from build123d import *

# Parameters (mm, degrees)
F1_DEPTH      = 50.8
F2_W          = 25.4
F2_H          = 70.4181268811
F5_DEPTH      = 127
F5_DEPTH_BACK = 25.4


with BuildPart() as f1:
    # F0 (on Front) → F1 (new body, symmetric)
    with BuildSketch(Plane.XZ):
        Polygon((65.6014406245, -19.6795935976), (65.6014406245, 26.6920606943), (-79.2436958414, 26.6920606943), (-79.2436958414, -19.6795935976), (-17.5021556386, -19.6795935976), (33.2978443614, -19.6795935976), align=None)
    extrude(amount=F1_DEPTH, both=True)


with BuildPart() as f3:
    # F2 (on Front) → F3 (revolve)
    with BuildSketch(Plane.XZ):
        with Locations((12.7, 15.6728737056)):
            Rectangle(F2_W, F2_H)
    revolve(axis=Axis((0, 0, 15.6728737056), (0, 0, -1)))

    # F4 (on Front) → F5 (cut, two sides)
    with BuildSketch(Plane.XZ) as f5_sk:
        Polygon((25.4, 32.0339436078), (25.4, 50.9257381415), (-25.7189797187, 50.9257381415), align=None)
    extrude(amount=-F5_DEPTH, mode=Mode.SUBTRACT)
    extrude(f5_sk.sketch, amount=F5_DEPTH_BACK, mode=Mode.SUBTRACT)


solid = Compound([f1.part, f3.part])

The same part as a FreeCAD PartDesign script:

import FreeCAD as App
import Part
import Sketcher
from FreeCAD import Vector
Q = App.Units.Quantity

doc = App.newDocument("Part")
body = doc.addObject("PartDesign::Body", "Body")

# Sketch on XZ plane
sketch1 = body.newObject("Sketcher::SketchObject", "Sketch")
sketch1.AttachmentSupport = (doc.getObject("XZ_Plane"), [""])
sketch1.MapMode = "FlatFace"
sketch1.addGeometry([
    Part.LineSegment(Vector(65.601441, -19.679594, 0), Vector(65.601441, 26.692061, 0)),
    Part.LineSegment(Vector(65.601441, 26.692061, 0), Vector(-79.243696, 26.692061, 0)),
    Part.LineSegment(Vector(-79.243696, 26.692061, 0), Vector(-79.243696, -19.679594, 0)),
    Part.LineSegment(Vector(-79.243696, -19.679594, 0), Vector(65.601441, -19.679594, 0)),
], False)
sketch1.addConstraint([
    Sketcher.Constraint("Coincident", 0, 2, 1, 1),
    Sketcher.Constraint("Coincident", 1, 2, 2, 1),
    Sketcher.Constraint("Coincident", 2, 2, 3, 1),
    Sketcher.Constraint("Coincident", 3, 2, 0, 1),
    Sketcher.Constraint("Vertical", 0),
    Sketcher.Constraint("Horizontal", 1),
    Sketcher.Constraint("Vertical", 2),
    Sketcher.Constraint("Horizontal", 3),
    Sketcher.Constraint("DistanceX", 1, 2, 1, 1, 144.845136),
    Sketcher.Constraint("DistanceY", 0, 1, 0, 2, 46.371654),
    Sketcher.Constraint("DistanceX", -1, 1, 0, 2, 65.601441),
    Sketcher.Constraint("DistanceY", -1, 1, 0, 2, 26.692061),
])
pad1 = body.newObject("PartDesign::Pad", "Pad")
pad1.Profile = sketch1
pad1.Length = Q("4 in")
pad1.Midplane = True
body2 = doc.addObject("PartDesign::Body", "Body001")

# Sketch on XZ plane
sketch2 = body2.newObject("Sketcher::SketchObject", "Sketch001")
sketch2.AttachmentSupport = (doc.getObject("XZ_Plane001"), [""])
sketch2.MapMode = "FlatFace"
sketch2.addGeometry([
    Part.LineSegment(Vector(0, 50.881937, 0), Vector(0, -19.53619, 0)),
    Part.LineSegment(Vector(0, -19.53619, 0), Vector(25.4, -19.53619, 0)),
    Part.LineSegment(Vector(25.4, -19.53619, 0), Vector(25.4, 50.881937, 0)),
    Part.LineSegment(Vector(25.4, 50.881937, 0), Vector(0, 50.881937, 0)),
], False)
sketch2.addConstraint([
    Sketcher.Constraint("Coincident", 0, 2, 1, 1),
    Sketcher.Constraint("Coincident", 1, 2, 2, 1),
    Sketcher.Constraint("Coincident", 2, 2, 3, 1),
    Sketcher.Constraint("Coincident", 3, 2, 0, 1),
    Sketcher.Constraint("Vertical", 0),
    Sketcher.Constraint("Horizontal", 1),
    Sketcher.Constraint("Vertical", 2),
    Sketcher.Constraint("Horizontal", 3),
    Sketcher.Constraint("PointOnObject", 0, 2, -2),
    Sketcher.Constraint("DistanceX", 1, 1, 1, 2, Q("1 in")),
    Sketcher.Constraint("DistanceY", 0, 2, 0, 1, 70.418127),
    Sketcher.Constraint("DistanceY", 0, 2, -1, 1, 19.53619),
])
revolution = body2.newObject("PartDesign::Revolution", "Revolution")
revolution.Profile = sketch2
revolution.ReferenceAxis = (sketch2, ["V_Axis"])
revolution.Angle = 360

# Sketch on XZ plane
sketch3 = body2.newObject("Sketcher::SketchObject", "Sketch002")
sketch3.AttachmentSupport = (doc.getObject("XZ_Plane001"), [""])
sketch3.MapMode = "FlatFace"
sketch3.addGeometry([
    Part.LineSegment(Vector(25.4, 32.033944, 0), Vector(25.4, 50.925738, 0)),
    Part.LineSegment(Vector(25.4, 50.925738, 0), Vector(-25.71898, 50.925738, 0)),
    Part.LineSegment(Vector(-25.71898, 50.925738, 0), Vector(25.4, 32.033944, 0)),
], False)
sketch3.addConstraint([
    Sketcher.Constraint("Coincident", 0, 2, 1, 1),
    Sketcher.Constraint("Coincident", 1, 2, 2, 1),
    Sketcher.Constraint("Coincident", 2, 2, 0, 1),
    Sketcher.Constraint("Vertical", 0),
    Sketcher.Constraint("Horizontal", 1),
    Sketcher.Constraint("DistanceX", -1, 1, 0, 2, Q("1 in")),
    Sketcher.Constraint("DistanceX", 1, 2, 1, 1, 51.11898),
    Sketcher.Constraint("DistanceY", 0, 1, 0, 2, 18.891795),
    Sketcher.Constraint("DistanceY", -1, 1, 0, 2, 50.925738),
])
pocket1 = body2.newObject("PartDesign::Pocket", "Pocket")
pocket1.Profile = sketch3
pocket1.Type = "ThroughAll"
pocket1.Midplane = True

doc.recompute()
